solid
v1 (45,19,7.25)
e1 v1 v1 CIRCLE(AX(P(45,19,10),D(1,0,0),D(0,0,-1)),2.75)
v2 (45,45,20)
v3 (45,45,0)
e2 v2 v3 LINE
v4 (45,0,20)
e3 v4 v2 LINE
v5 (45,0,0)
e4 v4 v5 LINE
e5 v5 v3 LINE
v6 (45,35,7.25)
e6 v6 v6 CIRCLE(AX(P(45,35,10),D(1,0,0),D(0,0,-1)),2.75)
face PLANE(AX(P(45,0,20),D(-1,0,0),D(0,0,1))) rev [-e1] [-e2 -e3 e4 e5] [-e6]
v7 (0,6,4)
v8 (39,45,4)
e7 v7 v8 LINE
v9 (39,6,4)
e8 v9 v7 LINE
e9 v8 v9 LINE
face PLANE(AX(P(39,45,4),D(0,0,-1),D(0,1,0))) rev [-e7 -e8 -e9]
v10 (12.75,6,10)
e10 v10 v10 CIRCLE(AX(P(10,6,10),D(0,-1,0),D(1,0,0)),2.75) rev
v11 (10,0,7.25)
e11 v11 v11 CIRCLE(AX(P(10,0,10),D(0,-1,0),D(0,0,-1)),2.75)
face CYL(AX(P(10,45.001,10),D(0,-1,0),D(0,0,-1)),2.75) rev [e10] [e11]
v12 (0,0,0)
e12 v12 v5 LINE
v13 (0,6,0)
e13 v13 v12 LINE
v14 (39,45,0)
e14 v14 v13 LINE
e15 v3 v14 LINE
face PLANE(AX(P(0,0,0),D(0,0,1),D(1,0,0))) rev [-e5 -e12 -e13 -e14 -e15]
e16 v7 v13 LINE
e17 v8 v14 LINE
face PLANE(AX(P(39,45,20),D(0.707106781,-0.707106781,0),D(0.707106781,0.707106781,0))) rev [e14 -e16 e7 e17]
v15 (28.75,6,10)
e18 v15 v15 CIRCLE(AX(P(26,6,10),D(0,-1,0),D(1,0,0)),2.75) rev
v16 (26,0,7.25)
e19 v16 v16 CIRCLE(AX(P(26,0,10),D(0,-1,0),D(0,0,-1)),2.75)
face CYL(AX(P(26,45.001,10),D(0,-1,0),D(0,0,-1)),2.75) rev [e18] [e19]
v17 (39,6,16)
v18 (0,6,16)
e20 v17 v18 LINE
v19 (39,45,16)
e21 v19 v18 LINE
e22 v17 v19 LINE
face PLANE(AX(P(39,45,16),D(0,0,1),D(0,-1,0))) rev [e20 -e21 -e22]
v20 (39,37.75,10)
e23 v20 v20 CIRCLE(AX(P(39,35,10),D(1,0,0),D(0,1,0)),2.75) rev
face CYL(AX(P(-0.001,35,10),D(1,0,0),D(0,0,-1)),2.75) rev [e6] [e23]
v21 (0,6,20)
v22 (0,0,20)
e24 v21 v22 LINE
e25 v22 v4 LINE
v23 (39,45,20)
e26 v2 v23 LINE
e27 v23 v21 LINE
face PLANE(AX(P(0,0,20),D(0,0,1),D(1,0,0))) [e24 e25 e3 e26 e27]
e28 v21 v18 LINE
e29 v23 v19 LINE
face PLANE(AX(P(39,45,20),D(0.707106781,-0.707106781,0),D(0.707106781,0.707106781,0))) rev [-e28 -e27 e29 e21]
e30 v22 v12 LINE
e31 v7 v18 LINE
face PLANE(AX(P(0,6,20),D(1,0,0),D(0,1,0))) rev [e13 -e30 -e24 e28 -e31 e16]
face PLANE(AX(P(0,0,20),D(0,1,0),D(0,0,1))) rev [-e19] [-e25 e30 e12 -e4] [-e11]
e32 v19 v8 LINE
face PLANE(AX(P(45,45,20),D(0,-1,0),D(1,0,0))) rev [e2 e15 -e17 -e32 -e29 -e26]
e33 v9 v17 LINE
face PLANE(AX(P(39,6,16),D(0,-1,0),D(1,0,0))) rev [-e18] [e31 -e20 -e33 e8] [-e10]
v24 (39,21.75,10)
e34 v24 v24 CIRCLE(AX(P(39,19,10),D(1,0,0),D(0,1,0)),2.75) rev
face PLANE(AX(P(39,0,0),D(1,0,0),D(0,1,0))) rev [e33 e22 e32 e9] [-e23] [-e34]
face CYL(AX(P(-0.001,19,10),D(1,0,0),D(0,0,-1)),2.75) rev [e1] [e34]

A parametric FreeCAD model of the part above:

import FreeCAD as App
import Part
import Sketcher

V = App.Vector


def add_polygon(sketch, points):
    """Adds a closed chain of lines whose ends are joined by coincident constraints."""
    first, n = sketch.GeometryCount, len(points)
    for a, b in zip(points, points[1:] + points[:1]):
        sketch.addGeometry(Part.LineSegment(App.Vector(*a, 0), App.Vector(*b, 0)), False)
    for i in range(n):
        sketch.addConstraint(Sketcher.Constraint("Coincident", first + i, 2, first + (i + 1) % n, 1))

doc = App.newDocument("Part")
params = doc.addObject("Spreadsheet::Sheet", "Params")
for row, (alias, value) in enumerate([
    ("sketch1_width", "45 mm"),
    ("sketch1_width2", "6 mm"),
    ("pad1_length", "20 mm"),
    ("sketch2_width", "39 mm"),
    ("sketch2_height", "12 mm"),
    ("pocket1_length", "39 mm"),
    ("sketch3_diameter", "5.5 mm"),
    ("sketch4_diameter", "5.5 mm"),
    ("sketch5_diameter", "5.5 mm"),
    ("sketch6_diameter", "5.5 mm"),
], start=1):
    params.set(f"A{row}", alias)
    params.set(f"B{row}", "=" + value)
    params.setAlias(f"B{row}", alias)

body = doc.addObject("PartDesign::Body", "Body")

# Sketch on XY plane
sketch1 = body.newObject("Sketcher::SketchObject", "Sketch")
sketch1.AttachmentSupport = (doc.getObject("XY_Plane"), [""])
sketch1.MapMode = "FlatFace"
add_polygon(sketch1, [(0, 0), (45, 0), (45, 45), (39, 45), (0, 6)])  # lines 0-4
sketch1.addConstraint(Sketcher.Constraint("Horizontal", 0))
sketch1.addConstraint(Sketcher.Constraint("Vertical", 1))
sketch1.addConstraint(Sketcher.Constraint("Horizontal", 2))
sketch1.addConstraint(Sketcher.Constraint("Vertical", 4))
sketch1.addConstraint(Sketcher.Constraint("Coincident", 4, 2, -1, 1))
sketch1.addConstraint(Sketcher.Constraint("Equal", 0, 1))
sketch1.addConstraint(Sketcher.Constraint("Equal", 2, 4))
sketch1.addConstraint(Sketcher.Constraint("DistanceX", 0, 1, 0, 2, 45.0))
sketch1.addConstraint(Sketcher.Constraint("DistanceX", 2, 2, 2, 1, 6.0))
sketch1.setExpression("Constraints[12]", "Params.sketch1_width")
sketch1.setExpression("Constraints[13]", "Params.sketch1_width2")
pad1 = body.newObject("PartDesign::Pad", "Pad")
pad1.Profile = sketch1
pad1.setExpression("Length", "Params.pad1_length")

# Sketch on YZ plane
sketch2 = body.newObject("Sketcher::SketchObject", "Sketch001")
sketch2.AttachmentSupport = (doc.getObject("YZ_Plane"), [""])
sketch2.MapMode = "FlatFace"
add_polygon(sketch2, [(45, 4), (6, 4), (6, 16), (45, 16)])  # lines 0-3
sketch2.addConstraint(Sketcher.Constraint("Horizontal", 0))
sketch2.addConstraint(Sketcher.Constraint("Vertical", 1))
sketch2.addConstraint(Sketcher.Constraint("Horizontal", 2))
sketch2.addConstraint(Sketcher.Constraint("Vertical", 3))
sketch2.addConstraint(Sketcher.Constraint("DistanceX", 0, 2, 0, 1, 39.0))
sketch2.addConstraint(Sketcher.Constraint("DistanceY", 1, 1, 1, 2, 12.0))
sketch2.addConstraint(Sketcher.Constraint("DistanceX", -1, 1, 0, 2, 6.0))
sketch2.addConstraint(Sketcher.Constraint("DistanceY", -1, 1, 0, 2, 4.0))
sketch2.setExpression("Constraints[8]", "Params.sketch2_width")
sketch2.setExpression("Constraints[9]", "Params.sketch2_height")
pocket1 = body.newObject("PartDesign::Pocket", "Pocket")
pocket1.Profile = sketch2
pocket1.setExpression("Length", "Params.pocket1_length")
pocket1.Reversed = True

# Sketch on YZ plane
sketch3 = body.newObject("Sketcher::SketchObject", "Sketch002")
sketch3.AttachmentSupport = (doc.getObject("YZ_Plane"), [""])
sketch3.MapMode = "FlatFace"
sketch3.AttachmentOffset = App.Placement(V(0, 0, 45), App.Rotation())
sketch3.addGeometry(Part.Circle(V(35, 10, 0), V(0, 0, 1), 2.8), False)
sketch3.addConstraint(Sketcher.Constraint("Diameter", 0, 5.5))
sketch3.addConstraint(Sketcher.Constraint("DistanceX", -1, 1, 0, 3, 35.0))
sketch3.addConstraint(Sketcher.Constraint("DistanceY", -1, 1, 0, 3, 10.0))
sketch3.setExpression("Constraints[0]", "Params.sketch3_diameter")
pocket2 = body.newObject("PartDesign::Pocket", "Pocket001")
pocket2.Profile = sketch3
pocket2.Type = "UpToFirst"

# Sketch on YZ plane
sketch4 = body.newObject("Sketcher::SketchObject", "Sketch003")
sketch4.AttachmentSupport = (doc.getObject("YZ_Plane"), [""])
sketch4.MapMode = "FlatFace"
sketch4.AttachmentOffset = App.Placement(V(0, 0, 45), App.Rotation())
sketch4.addGeometry(Part.Circle(V(19, 10, 0), V(0, 0, 1), 2.8), False)
sketch4.addConstraint(Sketcher.Constraint("Diameter", 0, 5.5))
sketch4.addConstraint(Sketcher.Constraint("DistanceX", -1, 1, 0, 3, 19.0))
sketch4.addConstraint(Sketcher.Constraint("DistanceY", -1, 1, 0, 3, 10.0))
sketch4.setExpression("Constraints[0]", "Params.sketch4_diameter")
pocket3 = body.newObject("PartDesign::Pocket", "Pocket002")
pocket3.Profile = sketch4
pocket3.Type = "UpToFirst"

# Sketch on XZ plane
sketch5 = body.newObject("Sketcher::SketchObject", "Sketch004")
sketch5.AttachmentSupport = (doc.getObject("XZ_Plane"), [""])
sketch5.MapMode = "FlatFace"
sketch5.addGeometry(Part.Circle(V(10, 10, 0), V(0, 0, 1), 2.8), False)
sketch5.addConstraint(Sketcher.Constraint("Diameter", 0, 5.5))
sketch5.addConstraint(Sketcher.Constraint("DistanceX", -1, 1, 0, 3, 10.0))
sketch5.addConstraint(Sketcher.Constraint("DistanceY", -1, 1, 0, 3, 10.0))
sketch5.setExpression("Constraints[0]", "Params.sketch5_diameter")
pocket4 = body.newObject("PartDesign::Pocket", "Pocket003")
pocket4.Profile = sketch5
pocket4.Type = "UpToFirst"

# Sketch on XZ plane
sketch6 = body.newObject("Sketcher::SketchObject", "Sketch005")
sketch6.AttachmentSupport = (doc.getObject("XZ_Plane"), [""])
sketch6.MapMode = "FlatFace"
sketch6.addGeometry(Part.Circle(V(26, 10, 0), V(0, 0, 1), 2.8), False)
sketch6.addConstraint(Sketcher.Constraint("Diameter", 0, 5.5))
sketch6.addConstraint(Sketcher.Constraint("DistanceX", -1, 1, 0, 3, 26.0))
sketch6.addConstraint(Sketcher.Constraint("DistanceY", -1, 1, 0, 3, 10.0))
sketch6.setExpression("Constraints[0]", "Params.sketch6_diameter")
pocket5 = body.newObject("PartDesign::Pocket", "Pocket004")
pocket5.Profile = sketch6
pocket5.Type = "UpToFirst"

doc.recompute()
